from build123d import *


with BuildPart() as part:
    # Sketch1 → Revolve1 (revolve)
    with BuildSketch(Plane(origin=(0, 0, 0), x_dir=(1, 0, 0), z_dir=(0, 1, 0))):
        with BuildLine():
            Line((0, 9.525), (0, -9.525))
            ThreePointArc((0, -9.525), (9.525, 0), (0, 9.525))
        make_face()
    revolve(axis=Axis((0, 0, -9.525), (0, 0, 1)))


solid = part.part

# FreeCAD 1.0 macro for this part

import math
import FreeCAD as App
import Part
import Sketcher
from FreeCAD import Vector
Q = App.Units.Quantity

doc = App.newDocument("Part")
body = doc.addObject("PartDesign::Body", "Body")

# Sketch on XZ plane
sketch1 = doc.addObject("Sketcher::SketchObject", "Sketch")
body.addObject(sketch1)
sketch1.AttachmentSupport = (doc.XZ_Plane, [""])
sketch1.MapMode = "FlatFace"
sketch1.addGeometry(Part.LineSegment(Vector(0, -10, 0), Vector(0, 10, 0)), False)
sketch1.addGeometry(Part.ArcOfCircle(Part.Circle(Vector(0, 0, 0), Vector(0, 0, 1), 10), math.radians(-90), math.radians(90)), False)
sketch1.addConstraint(Sketcher.Constraint("Coincident", 0, 1, 1, 1))
sketch1.addConstraint(Sketcher.Constraint("Coincident", 1, 2, 0, 2))
sketch1.addConstraint(Sketcher.Constraint("Vertical", 0))
sketch1.addConstraint(Sketcher.Constraint("Coincident", 1, 3, -1, 1))
sketch1.addConstraint(Sketcher.Constraint("PointOnObject", 0, 1, -2))
sketch1.addConstraint(Sketcher.Constraint("Radius", 1, Q("0.375 in")))
revolution = doc.addObject("PartDesign::Revolution", "Revolution")
body.addObject(revolution)
revolution.Profile = sketch1
revolution.ReferenceAxis = (sketch1, ["V_Axis"])
revolution.Angle = 360

doc.recompute()
